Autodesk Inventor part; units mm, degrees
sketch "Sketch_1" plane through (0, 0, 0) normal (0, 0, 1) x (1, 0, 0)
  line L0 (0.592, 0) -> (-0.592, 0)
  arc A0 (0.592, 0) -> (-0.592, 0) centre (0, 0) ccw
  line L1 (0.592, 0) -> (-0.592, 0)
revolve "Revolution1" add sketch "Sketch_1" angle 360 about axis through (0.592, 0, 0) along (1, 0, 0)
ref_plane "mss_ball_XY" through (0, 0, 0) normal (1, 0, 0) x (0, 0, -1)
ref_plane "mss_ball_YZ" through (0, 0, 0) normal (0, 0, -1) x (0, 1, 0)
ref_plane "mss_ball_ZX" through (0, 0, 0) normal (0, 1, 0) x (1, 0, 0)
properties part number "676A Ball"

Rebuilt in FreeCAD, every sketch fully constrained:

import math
import FreeCAD as App
import Part
import Sketcher
from FreeCAD import Vector
Q = App.Units.Quantity

doc = App.newDocument("Part")
body = doc.addObject("PartDesign::Body", "Body")

sketch1 = body.newObject("Sketcher::SketchObject", "Sketch")
sketch1.AttachmentSupport = (doc.getObject("XY_Plane"), [""])
sketch1.MapMode = "FlatFace"
sketch1.addGeometry([
    Part.LineSegment(Vector(-0.6, 0, 0), Vector(0.6, 0, 0)),
    Part.ArcOfCircle(Part.Circle(Vector(0, 0, 0), Vector(0, 0, 1), 0.6), math.radians(0), math.radians(180)),
], False)
sketch1.addConstraint([
    Sketcher.Constraint("Coincident", 0, 1, 1, 2),
    Sketcher.Constraint("Coincident", 1, 1, 0, 2),
    Sketcher.Constraint("Horizontal", 0),
    Sketcher.Constraint("Coincident", 1, 3, -1, 1),
    Sketcher.Constraint("PointOnObject", 0, 1, -1),
    Sketcher.Constraint("Radius", 1, Q("0.592 mm")),
])
revolution = body.newObject("PartDesign::Revolution", "Revolution")
revolution.Profile = sketch1
revolution.ReferenceAxis = (sketch1, ["H_Axis"])
revolution.Angle = 360

doc.recompute()
